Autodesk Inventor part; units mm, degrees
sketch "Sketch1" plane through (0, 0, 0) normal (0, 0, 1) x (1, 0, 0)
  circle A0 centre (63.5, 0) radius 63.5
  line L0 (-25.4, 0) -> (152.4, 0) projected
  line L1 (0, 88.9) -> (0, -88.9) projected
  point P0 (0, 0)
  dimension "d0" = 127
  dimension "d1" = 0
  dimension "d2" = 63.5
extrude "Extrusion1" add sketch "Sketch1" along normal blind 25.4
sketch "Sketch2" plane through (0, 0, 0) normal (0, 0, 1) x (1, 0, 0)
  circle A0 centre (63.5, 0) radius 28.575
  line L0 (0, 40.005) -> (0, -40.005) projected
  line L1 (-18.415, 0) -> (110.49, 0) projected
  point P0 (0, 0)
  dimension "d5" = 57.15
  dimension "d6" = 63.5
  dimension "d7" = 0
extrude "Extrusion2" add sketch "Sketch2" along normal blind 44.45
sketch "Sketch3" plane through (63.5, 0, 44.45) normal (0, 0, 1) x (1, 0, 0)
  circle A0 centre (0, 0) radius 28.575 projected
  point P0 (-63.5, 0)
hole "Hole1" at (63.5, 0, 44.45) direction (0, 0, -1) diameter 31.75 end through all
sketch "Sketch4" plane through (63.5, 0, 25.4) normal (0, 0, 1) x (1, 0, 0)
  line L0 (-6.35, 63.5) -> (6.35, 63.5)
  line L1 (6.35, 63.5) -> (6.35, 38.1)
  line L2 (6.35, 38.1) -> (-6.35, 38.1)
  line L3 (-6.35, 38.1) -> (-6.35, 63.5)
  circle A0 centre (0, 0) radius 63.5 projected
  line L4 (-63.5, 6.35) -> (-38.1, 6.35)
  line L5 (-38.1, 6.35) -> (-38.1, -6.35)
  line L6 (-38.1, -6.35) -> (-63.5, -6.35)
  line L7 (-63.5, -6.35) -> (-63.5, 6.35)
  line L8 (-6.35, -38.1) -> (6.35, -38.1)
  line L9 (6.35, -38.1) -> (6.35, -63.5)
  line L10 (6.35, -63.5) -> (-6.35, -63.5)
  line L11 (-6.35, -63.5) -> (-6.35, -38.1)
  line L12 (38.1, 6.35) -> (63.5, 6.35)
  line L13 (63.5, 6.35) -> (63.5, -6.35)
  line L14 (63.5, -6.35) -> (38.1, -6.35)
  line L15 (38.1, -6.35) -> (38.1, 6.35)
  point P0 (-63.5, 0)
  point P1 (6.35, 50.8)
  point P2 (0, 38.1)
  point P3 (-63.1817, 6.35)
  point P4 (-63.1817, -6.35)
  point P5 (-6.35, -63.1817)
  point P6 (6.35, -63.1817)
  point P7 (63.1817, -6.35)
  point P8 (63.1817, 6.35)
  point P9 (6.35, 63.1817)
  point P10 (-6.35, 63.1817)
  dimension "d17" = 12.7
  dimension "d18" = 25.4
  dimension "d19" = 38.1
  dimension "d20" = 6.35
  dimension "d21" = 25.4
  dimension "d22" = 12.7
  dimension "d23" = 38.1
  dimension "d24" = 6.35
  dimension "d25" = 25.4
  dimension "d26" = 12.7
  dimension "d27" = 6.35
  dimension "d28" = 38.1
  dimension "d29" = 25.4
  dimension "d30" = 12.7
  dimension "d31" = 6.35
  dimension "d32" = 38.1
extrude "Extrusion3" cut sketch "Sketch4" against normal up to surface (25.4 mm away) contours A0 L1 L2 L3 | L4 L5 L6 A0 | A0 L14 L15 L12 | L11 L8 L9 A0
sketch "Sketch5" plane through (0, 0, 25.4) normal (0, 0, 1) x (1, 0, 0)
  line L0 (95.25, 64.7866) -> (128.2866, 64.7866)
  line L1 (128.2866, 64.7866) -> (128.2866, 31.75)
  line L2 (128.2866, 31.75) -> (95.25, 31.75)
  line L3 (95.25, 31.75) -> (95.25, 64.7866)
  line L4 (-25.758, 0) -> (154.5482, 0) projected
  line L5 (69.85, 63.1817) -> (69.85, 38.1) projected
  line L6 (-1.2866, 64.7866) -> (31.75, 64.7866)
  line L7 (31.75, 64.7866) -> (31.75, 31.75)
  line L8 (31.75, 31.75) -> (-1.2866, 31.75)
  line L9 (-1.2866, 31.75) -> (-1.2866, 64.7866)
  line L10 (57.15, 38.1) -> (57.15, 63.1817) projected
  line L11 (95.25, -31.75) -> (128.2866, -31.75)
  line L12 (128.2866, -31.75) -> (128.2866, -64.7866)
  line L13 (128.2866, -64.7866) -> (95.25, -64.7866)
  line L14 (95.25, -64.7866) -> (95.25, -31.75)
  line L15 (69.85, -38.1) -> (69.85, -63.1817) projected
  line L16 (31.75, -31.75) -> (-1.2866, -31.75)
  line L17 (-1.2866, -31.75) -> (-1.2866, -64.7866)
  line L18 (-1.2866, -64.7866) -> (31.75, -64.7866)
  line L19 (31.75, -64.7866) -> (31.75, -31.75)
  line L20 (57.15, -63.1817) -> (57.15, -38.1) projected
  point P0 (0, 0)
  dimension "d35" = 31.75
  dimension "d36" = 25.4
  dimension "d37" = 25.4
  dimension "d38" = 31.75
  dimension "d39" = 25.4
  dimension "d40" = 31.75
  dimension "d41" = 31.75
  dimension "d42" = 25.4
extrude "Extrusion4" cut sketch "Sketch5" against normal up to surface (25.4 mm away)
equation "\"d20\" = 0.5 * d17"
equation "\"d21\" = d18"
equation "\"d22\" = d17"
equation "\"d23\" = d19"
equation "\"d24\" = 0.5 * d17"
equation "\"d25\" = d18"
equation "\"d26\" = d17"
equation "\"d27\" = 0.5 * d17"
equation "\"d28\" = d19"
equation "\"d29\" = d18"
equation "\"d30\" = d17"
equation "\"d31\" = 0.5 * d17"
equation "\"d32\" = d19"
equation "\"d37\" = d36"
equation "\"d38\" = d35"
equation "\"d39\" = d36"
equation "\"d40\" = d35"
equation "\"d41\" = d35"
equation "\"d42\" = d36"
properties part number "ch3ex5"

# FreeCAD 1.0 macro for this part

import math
import FreeCAD as App
import Part
import Sketcher
from FreeCAD import Vector
Q = App.Units.Quantity


def add_polygon(sketch, points):
    """Adds a closed chain of lines whose ends are joined by coincident constraints."""
    first, n = sketch.GeometryCount, len(points)
    for a, b in zip(points, points[1:] + points[:1]):
        sketch.addGeometry(Part.LineSegment(App.Vector(*a, 0), App.Vector(*b, 0)), False)
    for i in range(n):
        sketch.addConstraint(Sketcher.Constraint("Coincident", first + i, 2, first + (i + 1) % n, 1))

doc = App.newDocument("Part")
body = doc.addObject("PartDesign::Body", "Body")

sketch1 = body.newObject("Sketcher::SketchObject", "Sketch")
sketch1.AttachmentSupport = (doc.getObject("XY_Plane"), [""])
sketch1.MapMode = "FlatFace"
sketch1.addGeometry(Part.Circle(Vector(63.5, 0, 0), Vector(0, 0, 1), 63.5), False)
sketch1.addConstraint([
    Sketcher.Constraint("PointOnObject", 0, 3, -1),
    Sketcher.Constraint("Diameter", 0, Q("5 in")),
    Sketcher.Constraint("DistanceX", -1, 1, 0, 3, Q("2.5 in")),
])
pad1 = body.newObject("PartDesign::Pad", "Pad")
pad1.Profile = sketch1
pad1.Length = Q("1 in")

sketch2 = body.newObject("Sketcher::SketchObject", "Sketch001")
sketch2.AttachmentSupport = (doc.getObject("XY_Plane"), [""])
sketch2.MapMode = "FlatFace"
sketch2.addGeometry(Part.Circle(Vector(63.5, 0, 0), Vector(0, 0, 1), 28.575), False)
sketch2.addConstraint([
    Sketcher.Constraint("PointOnObject", 0, 3, -1),
    Sketcher.Constraint("Diameter", 0, Q("2.25 in")),
    Sketcher.Constraint("DistanceX", -1, 1, 0, 3, Q("2.5 in")),
])
pad2 = body.newObject("PartDesign::Pad", "Pad001")
pad2.Profile = sketch2
pad2.Length = Q("1.75 in")

sketch3 = body.newObject("Sketcher::SketchObject", "Sketch002")
sketch3.AttachmentSupport = (doc.getObject("XY_Plane"), [""])
sketch3.MapMode = "FlatFace"
sketch3.AttachmentOffset = App.Placement(Vector(0, 0, 1.75 * 25.4), App.Rotation())
sketch3.addGeometry(Part.Circle(Vector(63.5, 0, 0), Vector(0, 0, 1), 15.875), False)
sketch3.addConstraint([
    Sketcher.Constraint("PointOnObject", 0, 3, -1),
    Sketcher.Constraint("Diameter", 0, Q("1.25 in")),
    Sketcher.Constraint("DistanceX", -1, 1, 0, 3, Q("2.5 in")),
])
doc.recompute()
hole = body.newObject("PartDesign::Hole", "Hole")
hole.Profile = sketch3
hole.ThreadType = "None"
hole.Diameter = Q("1.25 in")
hole.DepthType = "ThroughAll"

sketch4 = body.newObject("Sketcher::SketchObject", "Sketch003")
sketch4.AttachmentSupport = (doc.getObject("XY_Plane"), [""])
sketch4.MapMode = "FlatFace"
sketch4.AttachmentOffset = App.Placement(Vector(0, 0, 1 * 25.4), App.Rotation())
sketch4.addGeometry([
    Part.ArcOfCircle(Part.Circle(Vector(63.5, 0, 0), Vector(0, 0, 1), 63.5), math.radians(84.26083), math.radians(95.73917)),
    Part.LineSegment(Vector(57.15, 63.181702, 0), Vector(57.15, 38.1, 0)),
    Part.LineSegment(Vector(57.15, 38.1, 0), Vector(69.85, 38.1, 0)),
    Part.LineSegment(Vector(69.85, 38.1, 0), Vector(69.85, 63.181702, 0)),
    Part.LineSegment(Vector(25.4, 6.35, 0), Vector(0.318298, 6.35, 0)),
    Part.ArcOfCircle(Part.Circle(Vector(63.5, 0, 0), Vector(0, 0, 1), 63.5), math.radians(174.26083), math.radians(185.73917)),
    Part.LineSegment(Vector(0.318298, -6.35, 0), Vector(25.4, -6.35, 0)),
    Part.LineSegment(Vector(25.4, -6.35, 0), Vector(25.4, 6.35, 0)),
    Part.ArcOfCircle(Part.Circle(Vector(63.5, 0, 0), Vector(0, 0, 1), 63.5), math.radians(-5.73917), math.radians(5.73917)),
    Part.LineSegment(Vector(126.681702, 6.35, 0), Vector(101.6, 6.35, 0)),
    Part.LineSegment(Vector(101.6, 6.35, 0), Vector(101.6, -6.35, 0)),
    Part.LineSegment(Vector(101.6, -6.35, 0), Vector(126.681702, -6.35, 0)),
    Part.LineSegment(Vector(57.15, -38.1, 0), Vector(57.15, -63.181702, 0)),
    Part.ArcOfCircle(Part.Circle(Vector(63.5, 0, 0), Vector(0, 0, 1), 63.5), math.radians(-95.73917), math.radians(-84.26083)),
    Part.LineSegment(Vector(69.85, -63.181702, 0), Vector(69.85, -38.1, 0)),
    Part.LineSegment(Vector(69.85, -38.1, 0), Vector(57.15, -38.1, 0)),
], False)
sketch4.addConstraint([
    Sketcher.Constraint("Coincident", 0, 2, 1, 1),
    Sketcher.Constraint("Coincident", 1, 2, 2, 1),
    Sketcher.Constraint("Coincident", 2, 2, 3, 1),
    Sketcher.Constraint("Coincident", 3, 2, 0, 1),
    Sketcher.Constraint("Coincident", 4, 2, 5, 1),
    Sketcher.Constraint("Coincident", 5, 2, 6, 1),
    Sketcher.Constraint("Coincident", 6, 2, 7, 1),
    Sketcher.Constraint("Coincident", 7, 2, 4, 1),
    Sketcher.Constraint("Coincident", 8, 2, 9, 1),
    Sketcher.Constraint("Coincident", 9, 2, 10, 1),
    Sketcher.Constraint("Coincident", 10, 2, 11, 1),
    Sketcher.Constraint("Coincident", 11, 2, 8, 1),
    Sketcher.Constraint("Coincident", 12, 2, 13, 1),
    Sketcher.Constraint("Coincident", 13, 2, 14, 1),
    Sketcher.Constraint("Coincident", 14, 2, 15, 1),
    Sketcher.Constraint("Coincident", 15, 2, 12, 1),
    Sketcher.Constraint("Vertical", 1),
    Sketcher.Constraint("Horizontal", 2),
    Sketcher.Constraint("Vertical", 3),
    Sketcher.Constraint("Horizontal", 4),
    Sketcher.Constraint("Horizontal", 6),
    Sketcher.Constraint("Vertical", 7),
    Sketcher.Constraint("Horizontal", 9),
    Sketcher.Constraint("Vertical", 10),
    Sketcher.Constraint("Horizontal", 11),
    Sketcher.Constraint("Vertical", 12),
    Sketcher.Constraint("Vertical", 14),
    Sketcher.Constraint("Horizontal", 15),
    Sketcher.Constraint("Coincident", 5, 3, 0, 3),
    Sketcher.Constraint("Coincident", 8, 3, 0, 3),
    Sketcher.Constraint("Coincident", 13, 3, 0, 3),
    Sketcher.Constraint("Equal", 0, 5),
    Sketcher.Constraint("Equal", 5, 8),
    Sketcher.Constraint("Equal", 8, 13),
    Sketcher.Constraint("Symmetric", 4, 2, 5, 2, -1),
    Sketcher.Constraint("Symmetric", 2, 2, 14, 2, -1),
    Sketcher.Constraint("Horizontal", 0, 2, 3, 2),
    Sketcher.Constraint("Horizontal", 7, 2, 8, 2),
    Sketcher.Constraint("Horizontal", 6, 2, 10, 2),
    Sketcher.Constraint("Horizontal", 12, 2, 13, 2),
    Sketcher.Constraint("Equal", 6, 9),
    Sketcher.Constraint("Equal", 11, 1),
    Sketcher.Constraint("Equal", 15, 7),
    Sketcher.Constraint("DistanceX", 2, 1, 2, 2, Q("0.5 in")),
    Sketcher.Constraint("DistanceX", -1, 1, 6, 2, Q("1 in")),
    Sketcher.Constraint("DistanceY", -1, 1, 1, 2, Q("1.5 in")),
    Sketcher.Constraint("Radius", 0, Q("2.5 in")),
])
pocket1 = body.newObject("PartDesign::Pocket", "Pocket")
pocket1.Profile = sketch4
pocket1.Length = Q("1 in")

sketch5 = body.newObject("Sketcher::SketchObject", "Sketch004")
sketch5.AttachmentSupport = (doc.getObject("XY_Plane"), [""])
sketch5.MapMode = "FlatFace"
sketch5.AttachmentOffset = App.Placement(Vector(0, 0, 1 * 25.4), App.Rotation())
add_polygon(sketch5, [(128.2866, 64.7866), (95.25, 64.7866), (95.25, 31.75), (128.2866, 31.75)])
add_polygon(sketch5, [(31.75, 64.7866), (-1.2866, 64.7866), (-1.2866, 31.75), (31.75, 31.75)])
add_polygon(sketch5, [(128.2866, -31.75), (95.25, -31.75), (95.25, -64.7866), (128.2866, -64.7866)])
add_polygon(sketch5, [(31.75, -64.7866), (31.75, -31.75), (-1.2866, -31.75), (-1.2866, -64.7866)])
sketch5.addConstraint([
    Sketcher.Constraint("Horizontal", 0),
    Sketcher.Constraint("Vertical", 1),
    Sketcher.Constraint("Horizontal", 2),
    Sketcher.Constraint("Vertical", 3),
    Sketcher.Constraint("Horizontal", 4),
    Sketcher.Constraint("Vertical", 5),
    Sketcher.Constraint("Horizontal", 6),
    Sketcher.Constraint("Vertical", 7),
    Sketcher.Constraint("Horizontal", 8),
    Sketcher.Constraint("Vertical", 9),
    Sketcher.Constraint("Horizontal", 10),
    Sketcher.Constraint("Vertical", 11),
    Sketcher.Constraint("Vertical", 12),
    Sketcher.Constraint("Horizontal", 13),
    Sketcher.Constraint("Vertical", 14),
    Sketcher.Constraint("Horizontal", 15),
    Sketcher.Constraint("Symmetric", 1, 2, 8, 2, -1),
    Sketcher.Constraint("Symmetric", 3, 2, 10, 2, -1),
    Sketcher.Constraint("Symmetric", 6, 2, 12, 2, -1),
    Sketcher.Constraint("Symmetric", 4, 2, 14, 2, -1),
    Sketcher.Constraint("Horizontal", 3, 2, 4, 2),
    Sketcher.Constraint("Horizontal", 2, 2, 5, 2),
    Sketcher.Constraint("Equal", 2, 4),
    Sketcher.Constraint("Equal", 15, 1),
    Sketcher.Constraint("DistanceY", -1, 1, 1, 2, Q("1.25 in")),
    Sketcher.Constraint("DistanceX", -1, 1, 6, 2, Q("1.25 in")),
    Sketcher.Constraint("DistanceX", 6, 2, 1, 2, Q("2.5 in")),
    Sketcher.Constraint("DistanceX", 0, 2, 0, 1, Q("33.0366 mm")),
])
pocket2 = body.newObject("PartDesign::Pocket", "Pocket001")
pocket2.Profile = sketch5
pocket2.Length = Q("1 in")

doc.recompute()
